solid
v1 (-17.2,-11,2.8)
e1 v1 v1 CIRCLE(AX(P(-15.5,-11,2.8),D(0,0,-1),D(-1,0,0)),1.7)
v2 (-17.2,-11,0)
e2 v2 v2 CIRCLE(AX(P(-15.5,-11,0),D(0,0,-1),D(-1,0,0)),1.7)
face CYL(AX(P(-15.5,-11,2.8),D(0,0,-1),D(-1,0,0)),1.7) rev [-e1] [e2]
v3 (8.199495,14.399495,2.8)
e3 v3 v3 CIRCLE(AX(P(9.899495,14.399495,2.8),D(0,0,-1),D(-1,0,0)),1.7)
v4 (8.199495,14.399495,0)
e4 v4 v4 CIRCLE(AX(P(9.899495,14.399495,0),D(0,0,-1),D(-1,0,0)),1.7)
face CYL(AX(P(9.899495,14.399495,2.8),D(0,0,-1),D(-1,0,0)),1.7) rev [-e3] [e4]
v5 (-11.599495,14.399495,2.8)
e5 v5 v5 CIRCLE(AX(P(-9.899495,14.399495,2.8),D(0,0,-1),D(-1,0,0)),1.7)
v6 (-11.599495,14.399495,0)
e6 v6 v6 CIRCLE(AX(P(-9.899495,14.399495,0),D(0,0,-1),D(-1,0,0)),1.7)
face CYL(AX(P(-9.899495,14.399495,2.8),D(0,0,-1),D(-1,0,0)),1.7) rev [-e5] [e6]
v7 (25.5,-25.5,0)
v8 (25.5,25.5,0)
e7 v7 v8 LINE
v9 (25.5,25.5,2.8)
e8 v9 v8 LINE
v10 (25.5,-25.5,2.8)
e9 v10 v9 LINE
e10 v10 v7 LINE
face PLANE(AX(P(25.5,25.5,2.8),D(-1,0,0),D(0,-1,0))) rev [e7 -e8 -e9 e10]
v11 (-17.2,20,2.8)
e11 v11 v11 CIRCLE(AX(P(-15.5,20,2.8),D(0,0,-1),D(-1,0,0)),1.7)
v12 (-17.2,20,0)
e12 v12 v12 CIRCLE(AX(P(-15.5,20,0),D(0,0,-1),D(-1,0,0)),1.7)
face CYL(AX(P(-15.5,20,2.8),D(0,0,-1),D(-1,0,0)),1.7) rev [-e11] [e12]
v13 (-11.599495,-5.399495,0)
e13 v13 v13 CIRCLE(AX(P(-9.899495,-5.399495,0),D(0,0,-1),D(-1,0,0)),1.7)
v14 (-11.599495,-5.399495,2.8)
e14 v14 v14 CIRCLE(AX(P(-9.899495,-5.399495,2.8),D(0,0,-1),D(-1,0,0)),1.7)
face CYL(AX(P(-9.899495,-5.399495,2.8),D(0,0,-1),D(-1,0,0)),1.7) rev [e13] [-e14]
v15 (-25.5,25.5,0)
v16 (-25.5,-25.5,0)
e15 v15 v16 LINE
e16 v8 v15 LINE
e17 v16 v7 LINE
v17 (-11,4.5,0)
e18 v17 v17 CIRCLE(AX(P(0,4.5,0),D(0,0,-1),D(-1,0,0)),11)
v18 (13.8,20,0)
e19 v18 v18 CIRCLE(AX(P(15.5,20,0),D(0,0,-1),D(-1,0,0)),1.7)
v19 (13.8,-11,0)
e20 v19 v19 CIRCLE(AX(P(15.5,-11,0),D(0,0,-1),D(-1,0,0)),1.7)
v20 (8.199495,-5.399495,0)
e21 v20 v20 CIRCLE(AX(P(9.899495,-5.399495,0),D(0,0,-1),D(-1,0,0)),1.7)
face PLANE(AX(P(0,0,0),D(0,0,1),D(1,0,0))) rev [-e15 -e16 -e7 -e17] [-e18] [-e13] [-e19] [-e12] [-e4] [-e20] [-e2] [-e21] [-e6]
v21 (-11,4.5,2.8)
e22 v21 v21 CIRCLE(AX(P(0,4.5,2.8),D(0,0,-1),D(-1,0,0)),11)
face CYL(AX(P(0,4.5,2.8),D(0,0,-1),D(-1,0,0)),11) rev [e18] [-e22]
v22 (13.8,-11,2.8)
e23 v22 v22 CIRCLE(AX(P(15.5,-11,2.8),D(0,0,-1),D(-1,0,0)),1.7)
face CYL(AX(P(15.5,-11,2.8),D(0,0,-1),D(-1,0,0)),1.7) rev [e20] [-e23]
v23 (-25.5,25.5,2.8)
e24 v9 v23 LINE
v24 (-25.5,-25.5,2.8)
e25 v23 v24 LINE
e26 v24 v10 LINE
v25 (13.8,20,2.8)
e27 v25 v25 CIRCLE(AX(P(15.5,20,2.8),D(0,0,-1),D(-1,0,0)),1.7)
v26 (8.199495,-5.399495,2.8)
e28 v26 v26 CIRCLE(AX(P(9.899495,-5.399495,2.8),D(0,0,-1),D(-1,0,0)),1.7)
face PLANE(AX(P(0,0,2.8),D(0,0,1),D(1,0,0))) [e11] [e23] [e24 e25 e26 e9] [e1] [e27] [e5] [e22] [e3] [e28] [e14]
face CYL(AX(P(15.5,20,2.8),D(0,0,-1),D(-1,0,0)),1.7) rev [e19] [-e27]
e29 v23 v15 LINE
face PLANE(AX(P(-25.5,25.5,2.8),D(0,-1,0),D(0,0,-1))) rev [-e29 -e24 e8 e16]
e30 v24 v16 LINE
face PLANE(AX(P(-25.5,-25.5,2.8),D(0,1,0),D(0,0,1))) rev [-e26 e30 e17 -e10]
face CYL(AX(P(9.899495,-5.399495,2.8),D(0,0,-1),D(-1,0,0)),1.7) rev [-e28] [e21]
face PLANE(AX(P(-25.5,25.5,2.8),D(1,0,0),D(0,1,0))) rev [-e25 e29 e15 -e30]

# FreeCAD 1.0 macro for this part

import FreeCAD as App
import Part
import Sketcher

V = App.Vector


def add_polygon(sketch, points):
    """Adds a closed chain of lines whose ends are joined by coincident constraints."""
    first, n = sketch.GeometryCount, len(points)
    for a, b in zip(points, points[1:] + points[:1]):
        sketch.addGeometry(Part.LineSegment(App.Vector(*a, 0), App.Vector(*b, 0)), False)
    for i in range(n):
        sketch.addConstraint(Sketcher.Constraint("Coincident", first + i, 2, first + (i + 1) % n, 1))

doc = App.newDocument("Part")
body = doc.addObject("PartDesign::Body", "Body")

sketch1 = body.newObject("Sketcher::SketchObject", "Sketch")
sketch1.AttachmentSupport = (doc.getObject("XY_Plane"), [""])
sketch1.MapMode = "FlatFace"
add_polygon(sketch1, [(-26, 26), (-26, -26), (26, -26), (26, 26)])
sketch1.addConstraint(Sketcher.Constraint("Vertical", 0))
sketch1.addConstraint(Sketcher.Constraint("Horizontal", 1))
sketch1.addConstraint(Sketcher.Constraint("Vertical", 2))
sketch1.addConstraint(Sketcher.Constraint("Horizontal", 3))
sketch1.addConstraint(Sketcher.Constraint("Symmetric", 0, 2, 2, 2, -1, 1))
sketch1.addConstraint(Sketcher.Constraint("Equal", 3, 0))
sketch1.addConstraint(Sketcher.Constraint("DistanceX", 1, 1, 1, 2, 51.0))
pad1 = body.newObject("PartDesign::Pad", "Pad")
pad1.Profile = sketch1
pad1.Length = 2.8

sketch2 = body.newObject("Sketcher::SketchObject", "Sketch001")
sketch2.AttachmentSupport = (doc.getObject("XY_Plane"), [""])
sketch2.MapMode = "FlatFace"
sketch2.addGeometry(Part.Circle(V(0, 4.5, 0), V(0, 0, 1), 11), False)
sketch2.addGeometry(Part.Circle(V(15.5, 20, 0), V(0, 0, 1), 1.7), False)
sketch2.addGeometry(Part.Circle(V(-15.5, 20, 0), V(0, 0, 1), 1.7), False)
sketch2.addGeometry(Part.Circle(V(-15.5, -11, 0), V(0, 0, 1), 1.7), False)
sketch2.addGeometry(Part.Circle(V(15.5, -11, 0), V(0, 0, 1), 1.7), False)
sketch2.addGeometry(Part.Circle(V(9.9, 14.4, 0), V(0, 0, 1), 1.7), False)
sketch2.addGeometry(Part.Circle(V(-9.9, 14.4, 0), V(0, 0, 1), 1.7), False)
sketch2.addGeometry(Part.Circle(V(-9.9, -5.4, 0), V(0, 0, 1), 1.7), False)
sketch2.addGeometry(Part.Circle(V(9.9, -5.4, 0), V(0, 0, 1), 1.7), False)
sketch2.addConstraint(Sketcher.Constraint("Equal", 1, 2))
sketch2.addConstraint(Sketcher.Constraint("Equal", 2, 3))
sketch2.addConstraint(Sketcher.Constraint("Equal", 3, 4))
sketch2.addConstraint(Sketcher.Constraint("Equal", 4, 5))
sketch2.addConstraint(Sketcher.Constraint("Equal", 5, 6))
sketch2.addConstraint(Sketcher.Constraint("Equal", 6, 7))
sketch2.addConstraint(Sketcher.Constraint("Equal", 7, 8))
sketch2.addConstraint(Sketcher.Constraint("Symmetric", 1, 3, 2, 3, -2))
sketch2.addConstraint(Sketcher.Constraint("Symmetric", 3, 3, 4, 3, -2))
sketch2.addConstraint(Sketcher.Constraint("Symmetric", 5, 3, 6, 3, -2))
sketch2.addConstraint(Sketcher.Constraint("Symmetric", 7, 3, 8, 3, -2))
sketch2.addConstraint(Sketcher.Constraint("PointOnObject", 0, 3, -2))
sketch2.addConstraint(Sketcher.Constraint("Vertical", 2, 3, 3, 3))
sketch2.addConstraint(Sketcher.Constraint("Vertical", 6, 3, 7, 3))
sketch2.addConstraint(Sketcher.Constraint("Diameter", 0, 22.0))
sketch2.addConstraint(Sketcher.Constraint("Diameter", 1, 3.4))
sketch2.addConstraint(Sketcher.Constraint("DistanceY", -1, 1, 1, 3, 20.0))
sketch2.addConstraint(Sketcher.Constraint("DistanceY", 3, 3, -1, 1, 11.0))
sketch2.addConstraint(Sketcher.Constraint("DistanceX", 2, 3, 1, 3, 31.0))
sketch2.addConstraint(Sketcher.Constraint("DistanceY", -1, 1, 0, 3, 4.5))
sketch2.addConstraint(Sketcher.Constraint("DistanceX", 6, 3, 5, 3, 19.79899))
sketch2.addConstraint(Sketcher.Constraint("DistanceY", 7, 3, 6, 3, 19.79899))
sketch2.addConstraint(Sketcher.Constraint("DistanceY", -1, 1, 5, 3, 14.399495))
pocket1 = body.newObject("PartDesign::Pocket", "Pocket")
pocket1.Profile = sketch2
pocket1.Type = "ThroughAll"
pocket1.Reversed = True

doc.recompute()
